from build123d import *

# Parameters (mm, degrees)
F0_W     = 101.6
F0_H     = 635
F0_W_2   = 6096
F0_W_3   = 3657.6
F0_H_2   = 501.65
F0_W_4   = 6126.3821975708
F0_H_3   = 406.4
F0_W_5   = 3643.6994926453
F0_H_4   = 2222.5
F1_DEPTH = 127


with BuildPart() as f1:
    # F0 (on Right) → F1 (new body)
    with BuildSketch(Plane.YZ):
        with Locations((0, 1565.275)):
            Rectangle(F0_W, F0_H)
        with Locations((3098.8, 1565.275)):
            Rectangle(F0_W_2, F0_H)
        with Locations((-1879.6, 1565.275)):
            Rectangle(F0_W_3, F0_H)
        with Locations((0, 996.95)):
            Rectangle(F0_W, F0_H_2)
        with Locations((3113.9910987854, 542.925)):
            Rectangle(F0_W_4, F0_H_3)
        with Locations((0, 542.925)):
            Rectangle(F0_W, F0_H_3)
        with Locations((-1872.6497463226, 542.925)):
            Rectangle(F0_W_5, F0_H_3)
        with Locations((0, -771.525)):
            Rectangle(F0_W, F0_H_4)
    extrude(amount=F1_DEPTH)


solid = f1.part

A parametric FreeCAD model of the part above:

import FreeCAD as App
import Part
import Sketcher
Q = App.Units.Quantity


def add_polygon(sketch, points):
    """Adds a closed chain of lines whose ends are joined by coincident constraints."""
    first, n = sketch.GeometryCount, len(points)
    for a, b in zip(points, points[1:] + points[:1]):
        sketch.addGeometry(Part.LineSegment(App.Vector(*a, 0), App.Vector(*b, 0)), False)
    for i in range(n):
        sketch.addConstraint(Sketcher.Constraint("Coincident", first + i, 2, first + (i + 1) % n, 1))

doc = App.newDocument("Part")
body = doc.addObject("PartDesign::Body", "Body")

# Sketch on YZ plane
sketch1 = doc.addObject("Sketcher::SketchObject", "Sketch")
body.addObject(sketch1)
sketch1.AttachmentSupport = (doc.YZ_Plane, [""])
sketch1.MapMode = "FlatFace"
add_polygon(sketch1, [(6147, 1248), (6147, 1883), (-3708, 1883), (-3708, 1248), (-51, 1248), (-51, 746), (-3694, 746), (-3694, 340), (-51, 340), (-51, -1883), (51, -1883), (51, 340), (6177, 340), (6177, 746), (51, 746), (51, 1248)])  # lines 0-15
sketch1.addConstraint(Sketcher.Constraint("Vertical", 0))
sketch1.addConstraint(Sketcher.Constraint("Horizontal", 1))
sketch1.addConstraint(Sketcher.Constraint("Vertical", 2))
sketch1.addConstraint(Sketcher.Constraint("Horizontal", 3))
sketch1.addConstraint(Sketcher.Constraint("Vertical", 4))
sketch1.addConstraint(Sketcher.Constraint("Horizontal", 5))
sketch1.addConstraint(Sketcher.Constraint("Vertical", 6))
sketch1.addConstraint(Sketcher.Constraint("Horizontal", 7))
sketch1.addConstraint(Sketcher.Constraint("Vertical", 8))
sketch1.addConstraint(Sketcher.Constraint("Horizontal", 9))
sketch1.addConstraint(Sketcher.Constraint("Vertical", 10))
sketch1.addConstraint(Sketcher.Constraint("Horizontal", 11))
sketch1.addConstraint(Sketcher.Constraint("Vertical", 12))
sketch1.addConstraint(Sketcher.Constraint("Horizontal", 13))
sketch1.addConstraint(Sketcher.Constraint("Vertical", 14))
sketch1.addConstraint(Sketcher.Constraint("Horizontal", 15))
sketch1.addConstraint(Sketcher.Constraint("Symmetric", 7, 2, 10, 2, -2))
sketch1.addConstraint(Sketcher.Constraint("Symmetric", 4, 2, 13, 2, -2))
sketch1.addConstraint(Sketcher.Constraint("Horizontal", 3, 2, 14, 2))
sketch1.addConstraint(Sketcher.Constraint("Vertical", 4, 2, 7, 2))
sketch1.addConstraint(Sketcher.Constraint("DistanceX", 1, 2, 1, 1, Q("388 in")))
sketch1.addConstraint(Sketcher.Constraint("DistanceX", 3, 1, 3, 2, Q("144 in")))
sketch1.addConstraint(Sketcher.Constraint("DistanceX", 9, 1, 9, 2, Q("4 in")))
sketch1.addConstraint(Sketcher.Constraint("DistanceY", 0, 1, 0, 2, Q("25 in")))
sketch1.addConstraint(Sketcher.Constraint("DistanceY", 6, 2, 6, 1, Q("16 in")))
sketch1.addConstraint(Sketcher.Constraint("DistanceY", 8, 2, 8, 1, Q("87.5 in")))
sketch1.addConstraint(Sketcher.Constraint("DistanceY", 4, 2, 4, 1, Q("19.75 in")))
sketch1.addConstraint(Sketcher.Constraint("DistanceY", -1, 1, 0, 2, Q("74.125 in")))
sketch1.addConstraint(Sketcher.Constraint("DistanceX", 5, 2, 5, 1, 3643.699493))
sketch1.addConstraint(Sketcher.Constraint("DistanceX", 11, 1, 11, 2, 6126.382198))
pad1 = doc.addObject("PartDesign::Pad", "Pad")
body.addObject(pad1)
pad1.Profile = sketch1
pad1.Length = Q("5 in")

doc.recompute()
